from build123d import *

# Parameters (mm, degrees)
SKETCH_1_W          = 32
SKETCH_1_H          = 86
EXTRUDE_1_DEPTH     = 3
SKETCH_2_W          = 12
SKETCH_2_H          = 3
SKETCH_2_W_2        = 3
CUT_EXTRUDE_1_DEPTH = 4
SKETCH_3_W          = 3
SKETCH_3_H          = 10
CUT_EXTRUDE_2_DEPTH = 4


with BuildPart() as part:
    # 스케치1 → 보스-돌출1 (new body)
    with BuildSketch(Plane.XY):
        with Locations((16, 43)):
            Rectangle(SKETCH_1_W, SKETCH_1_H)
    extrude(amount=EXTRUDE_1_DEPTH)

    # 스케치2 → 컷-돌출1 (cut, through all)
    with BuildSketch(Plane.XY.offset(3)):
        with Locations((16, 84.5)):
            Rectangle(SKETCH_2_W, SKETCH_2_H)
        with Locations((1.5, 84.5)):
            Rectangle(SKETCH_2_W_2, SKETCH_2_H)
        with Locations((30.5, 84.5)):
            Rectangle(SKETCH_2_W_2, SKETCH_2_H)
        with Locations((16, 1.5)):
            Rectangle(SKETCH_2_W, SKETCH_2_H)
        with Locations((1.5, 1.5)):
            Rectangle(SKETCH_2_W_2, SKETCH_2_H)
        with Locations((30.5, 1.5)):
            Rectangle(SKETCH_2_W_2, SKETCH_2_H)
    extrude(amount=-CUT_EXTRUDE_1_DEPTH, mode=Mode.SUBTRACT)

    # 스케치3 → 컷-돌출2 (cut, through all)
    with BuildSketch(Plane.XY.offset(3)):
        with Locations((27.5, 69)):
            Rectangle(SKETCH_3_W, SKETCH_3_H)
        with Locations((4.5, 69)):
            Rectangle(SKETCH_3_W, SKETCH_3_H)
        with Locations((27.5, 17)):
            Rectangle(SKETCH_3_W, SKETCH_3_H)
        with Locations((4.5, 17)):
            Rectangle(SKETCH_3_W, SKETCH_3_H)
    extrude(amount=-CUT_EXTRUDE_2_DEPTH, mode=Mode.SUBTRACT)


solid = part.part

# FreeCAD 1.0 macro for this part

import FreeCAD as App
import Part
import Sketcher

doc = App.newDocument("Part")
body = doc.addObject("PartDesign::Body", "Body")

# Sketch on XY plane
sketch1 = doc.addObject("Sketcher::SketchObject", "Sketch")
body.addObject(sketch1)
sketch1.AttachmentSupport = (doc.XY_Plane, [""])
sketch1.MapMode = "FlatFace"
sketch1.addGeometry(Part.LineSegment(App.Vector(0, 86, 0), App.Vector(0, 0, 0)), False)
sketch1.addGeometry(Part.LineSegment(App.Vector(0, 0, 0), App.Vector(32, 0, 0)), False)
sketch1.addGeometry(Part.LineSegment(App.Vector(32, 0, 0), App.Vector(32, 86, 0)), False)
sketch1.addGeometry(Part.LineSegment(App.Vector(32, 86, 0), App.Vector(0, 86, 0)), False)
sketch1.addConstraint(Sketcher.Constraint("Coincident", 0, 2, 1, 1))
sketch1.addConstraint(Sketcher.Constraint("Coincident", 1, 2, 2, 1))
sketch1.addConstraint(Sketcher.Constraint("Coincident", 2, 2, 3, 1))
sketch1.addConstraint(Sketcher.Constraint("Coincident", 3, 2, 0, 1))
sketch1.addConstraint(Sketcher.Constraint("Vertical", 0))
sketch1.addConstraint(Sketcher.Constraint("Horizontal", 1))
sketch1.addConstraint(Sketcher.Constraint("Vertical", 2))
sketch1.addConstraint(Sketcher.Constraint("Horizontal", 3))
sketch1.addConstraint(Sketcher.Constraint("Coincident", 0, 2, -1, 1))
sketch1.addConstraint(Sketcher.Constraint("DistanceX", 1, 1, 1, 2, 32.0))
sketch1.addConstraint(Sketcher.Constraint("DistanceY", 0, 2, 0, 1, 86.0))
pad1 = doc.addObject("PartDesign::Pad", "Pad")
body.addObject(pad1)
pad1.Profile = sketch1
pad1.Length = 3

# Sketch on XY plane
sketch2 = doc.addObject("Sketcher::SketchObject", "Sketch001")
body.addObject(sketch2)
sketch2.AttachmentSupport = (doc.XY_Plane, [""])
sketch2.MapMode = "FlatFace"
sketch2.AttachmentOffset = App.Placement(App.Vector(0, 0, 3), App.Rotation())
sketch2.addGeometry(Part.LineSegment(App.Vector(10, 86, 0), App.Vector(10, 83, 0)), False)
sketch2.addGeometry(Part.LineSegment(App.Vector(10, 83, 0), App.Vector(22, 83, 0)), False)
sketch2.addGeometry(Part.LineSegment(App.Vector(22, 83, 0), App.Vector(22, 86, 0)), False)
sketch2.addGeometry(Part.LineSegment(App.Vector(22, 86, 0), App.Vector(10, 86, 0)), False)
sketch2.addGeometry(Part.LineSegment(App.Vector(0, 86, 0), App.Vector(0, 83, 0)), False)
sketch2.addGeometry(Part.LineSegment(App.Vector(0, 83, 0), App.Vector(3, 83, 0)), False)
sketch2.addGeometry(Part.LineSegment(App.Vector(3, 83, 0), App.Vector(3, 86, 0)), False)
sketch2.addGeometry(Part.LineSegment(App.Vector(3, 86, 0), App.Vector(0, 86, 0)), False)
sketch2.addGeometry(Part.LineSegment(App.Vector(29, 86, 0), App.Vector(29, 83, 0)), False)
sketch2.addGeometry(Part.LineSegment(App.Vector(29, 83, 0), App.Vector(32, 83, 0)), False)
sketch2.addGeometry(Part.LineSegment(App.Vector(32, 83, 0), App.Vector(32, 86, 0)), False)
sketch2.addGeometry(Part.LineSegment(App.Vector(32, 86, 0), App.Vector(29, 86, 0)), False)
sketch2.addGeometry(Part.LineSegment(App.Vector(10, 3, 0), App.Vector(10, 0, 0)), False)
sketch2.addGeometry(Part.LineSegment(App.Vector(10, 0, 0), App.Vector(22, 0, 0)), False)
sketch2.addGeometry(Part.LineSegment(App.Vector(22, 0, 0), App.Vector(22, 3, 0)), False)
sketch2.addGeometry(Part.LineSegment(App.Vector(22, 3, 0), App.Vector(10, 3, 0)), False)
sketch2.addGeometry(Part.LineSegment(App.Vector(0, 3, 0), App.Vector(0, 0, 0)), False)
sketch2.addGeometry(Part.LineSegment(App.Vector(0, 0, 0), App.Vector(3, 0, 0)), False)
sketch2.addGeometry(Part.LineSegment(App.Vector(3, 0, 0), App.Vector(3, 3, 0)), False)
sketch2.addGeometry(Part.LineSegment(App.Vector(3, 3, 0), App.Vector(0, 3, 0)), False)
sketch2.addGeometry(Part.LineSegment(App.Vector(29, 3, 0), App.Vector(29, 0, 0)), False)
sketch2.addGeometry(Part.LineSegment(App.Vector(29, 0, 0), App.Vector(32, 0, 0)), False)
sketch2.addGeometry(Part.LineSegment(App.Vector(32, 0, 0), App.Vector(32, 3, 0)), False)
sketch2.addGeometry(Part.LineSegment(App.Vector(32, 3, 0), App.Vector(29, 3, 0)), False)
sketch2.addConstraint(Sketcher.Constraint("Coincident", 0, 2, 1, 1))
sketch2.addConstraint(Sketcher.Constraint("Coincident", 1, 2, 2, 1))
sketch2.addConstraint(Sketcher.Constraint("Coincident", 2, 2, 3, 1))
sketch2.addConstraint(Sketcher.Constraint("Coincident", 3, 2, 0, 1))
sketch2.addConstraint(Sketcher.Constraint("Coincident", 4, 2, 5, 1))
sketch2.addConstraint(Sketcher.Constraint("Coincident", 5, 2, 6, 1))
sketch2.addConstraint(Sketcher.Constraint("Coincident", 6, 2, 7, 1))
sketch2.addConstraint(Sketcher.Constraint("Coincident", 7, 2, 4, 1))
sketch2.addConstraint(Sketcher.Constraint("Coincident", 8, 2, 9, 1))
sketch2.addConstraint(Sketcher.Constraint("Coincident", 9, 2, 10, 1))
sketch2.addConstraint(Sketcher.Constraint("Coincident", 10, 2, 11, 1))
sketch2.addConstraint(Sketcher.Constraint("Coincident", 11, 2, 8, 1))
sketch2.addConstraint(Sketcher.Constraint("Coincident", 12, 2, 13, 1))
sketch2.addConstraint(Sketcher.Constraint("Coincident", 13, 2, 14, 1))
sketch2.addConstraint(Sketcher.Constraint("Coincident", 14, 2, 15, 1))
sketch2.addConstraint(Sketcher.Constraint("Coincident", 15, 2, 12, 1))
sketch2.addConstraint(Sketcher.Constraint("Coincident", 16, 2, 17, 1))
sketch2.addConstraint(Sketcher.Constraint("Coincident", 17, 2, 18, 1))
sketch2.addConstraint(Sketcher.Constraint("Coincident", 18, 2, 19, 1))
sketch2.addConstraint(Sketcher.Constraint("Coincident", 19, 2, 16, 1))
sketch2.addConstraint(Sketcher.Constraint("Coincident", 20, 2, 21, 1))
sketch2.addConstraint(Sketcher.Constraint("Coincident", 21, 2, 22, 1))
sketch2.addConstraint(Sketcher.Constraint("Coincident", 22, 2, 23, 1))
sketch2.addConstraint(Sketcher.Constraint("Coincident", 23, 2, 20, 1))
sketch2.addConstraint(Sketcher.Constraint("Vertical", 0))
sketch2.addConstraint(Sketcher.Constraint("Horizontal", 1))
sketch2.addConstraint(Sketcher.Constraint("Vertical", 2))
sketch2.addConstraint(Sketcher.Constraint("Horizontal", 3))
sketch2.addConstraint(Sketcher.Constraint("Vertical", 4))
sketch2.addConstraint(Sketcher.Constraint("Horizontal", 5))
sketch2.addConstraint(Sketcher.Constraint("Vertical", 6))
sketch2.addConstraint(Sketcher.Constraint("Horizontal", 7))
sketch2.addConstraint(Sketcher.Constraint("Vertical", 8))
sketch2.addConstraint(Sketcher.Constraint("Horizontal", 9))
sketch2.addConstraint(Sketcher.Constraint("Vertical", 10))
sketch2.addConstraint(Sketcher.Constraint("Horizontal", 11))
sketch2.addConstraint(Sketcher.Constraint("Vertical", 12))
sketch2.addConstraint(Sketcher.Constraint("Horizontal", 13))
sketch2.addConstraint(Sketcher.Constraint("Vertical", 14))
sketch2.addConstraint(Sketcher.Constraint("Horizontal", 15))
sketch2.addConstraint(Sketcher.Constraint("Vertical", 16))
sketch2.addConstraint(Sketcher.Constraint("Horizontal", 17))
sketch2.addConstraint(Sketcher.Constraint("Vertical", 18))
sketch2.addConstraint(Sketcher.Constraint("Horizontal", 19))
sketch2.addConstraint(Sketcher.Constraint("Vertical", 20))
sketch2.addConstraint(Sketcher.Constraint("Horizontal", 21))
sketch2.addConstraint(Sketcher.Constraint("Vertical", 22))
sketch2.addConstraint(Sketcher.Constraint("Horizontal", 23))
sketch2.addConstraint(Sketcher.Constraint("Coincident", 16, 2, -1, 1))
sketch2.addConstraint(Sketcher.Constraint("PointOnObject", 4, 2, -2))
sketch2.addConstraint(Sketcher.Constraint("PointOnObject", 12, 2, -1))
sketch2.addConstraint(Sketcher.Constraint("PointOnObject", 20, 2, -1))
sketch2.addConstraint(Sketcher.Constraint("Horizontal", 1, 2, 4, 2))
sketch2.addConstraint(Sketcher.Constraint("Horizontal", 3, 2, 6, 2))
sketch2.addConstraint(Sketcher.Constraint("Horizontal", 5, 2, 8, 2))
sketch2.addConstraint(Sketcher.Constraint("Horizontal", 7, 2, 10, 2))
sketch2.addConstraint(Sketcher.Constraint("Horizontal", 15, 2, 18, 2))
sketch2.addConstraint(Sketcher.Constraint("Horizontal", 19, 2, 22, 2))
sketch2.addConstraint(Sketcher.Constraint("Vertical", 3, 2, 12, 2))
sketch2.addConstraint(Sketcher.Constraint("Vertical", 2, 2, 13, 2))
sketch2.addConstraint(Sketcher.Constraint("Vertical", 6, 2, 17, 2))
sketch2.addConstraint(Sketcher.Constraint("Vertical", 11, 2, 20, 2))
sketch2.addConstraint(Sketcher.Constraint("Vertical", 10, 2, 21, 2))
sketch2.addConstraint(Sketcher.Constraint("Equal", 7, 9))
sketch2.addConstraint(Sketcher.Constraint("Equal", 23, 0))
sketch2.addConstraint(Sketcher.Constraint("Equal", 10, 12))
sketch2.addConstraint(Sketcher.Constraint("DistanceX", 1, 1, 1, 2, 12.0))
sketch2.addConstraint(Sketcher.Constraint("DistanceX", 5, 1, 5, 2, 3.0))
sketch2.addConstraint(Sketcher.Constraint("DistanceX", -1, 1, 0, 2, 10.0))
sketch2.addConstraint(Sketcher.Constraint("DistanceY", -1, 1, 0, 2, 83.0))
sketch2.addConstraint(Sketcher.Constraint("DistanceX", -1, 1, 8, 2, 29.0))
pocket1 = doc.addObject("PartDesign::Pocket", "Pocket")
body.addObject(pocket1)
pocket1.Profile = sketch2
pocket1.Type = "ThroughAll"

# Sketch on XY plane
sketch3 = doc.addObject("Sketcher::SketchObject", "Sketch002")
body.addObject(sketch3)
sketch3.AttachmentSupport = (doc.XY_Plane, [""])
sketch3.MapMode = "FlatFace"
sketch3.AttachmentOffset = App.Placement(App.Vector(0, 0, 3), App.Rotation())
sketch3.addGeometry(Part.LineSegment(App.Vector(26, 74, 0), App.Vector(26, 64, 0)), False)
sketch3.addGeometry(Part.LineSegment(App.Vector(26, 64, 0), App.Vector(29, 64, 0)), False)
sketch3.addGeometry(Part.LineSegment(App.Vector(29, 64, 0), App.Vector(29, 74, 0)), False)
sketch3.addGeometry(Part.LineSegment(App.Vector(29, 74, 0), App.Vector(26, 74, 0)), False)
sketch3.addGeometry(Part.LineSegment(App.Vector(3, 74, 0), App.Vector(3, 64, 0)), False)
sketch3.addGeometry(Part.LineSegment(App.Vector(3, 64, 0), App.Vector(6, 64, 0)), False)
sketch3.addGeometry(Part.LineSegment(App.Vector(6, 64, 0), App.Vector(6, 74, 0)), False)
sketch3.addGeometry(Part.LineSegment(App.Vector(6, 74, 0), App.Vector(3, 74, 0)), False)
sketch3.addGeometry(Part.LineSegment(App.Vector(26, 22, 0), App.Vector(26, 12, 0)), False)
sketch3.addGeometry(Part.LineSegment(App.Vector(26, 12, 0), App.Vector(29, 12, 0)), False)
sketch3.addGeometry(Part.LineSegment(App.Vector(29, 12, 0), App.Vector(29, 22, 0)), False)
sketch3.addGeometry(Part.LineSegment(App.Vector(29, 22, 0), App.Vector(26, 22, 0)), False)
sketch3.addGeometry(Part.LineSegment(App.Vector(3, 22, 0), App.Vector(3, 12, 0)), False)
sketch3.addGeometry(Part.LineSegment(App.Vector(3, 12, 0), App.Vector(6, 12, 0)), False)
sketch3.addGeometry(Part.LineSegment(App.Vector(6, 12, 0), App.Vector(6, 22, 0)), False)
sketch3.addGeometry(Part.LineSegment(App.Vector(6, 22, 0), App.Vector(3, 22, 0)), False)
sketch3.addConstraint(Sketcher.Constraint("Coincident", 0, 2, 1, 1))
sketch3.addConstraint(Sketcher.Constraint("Coincident", 1, 2, 2, 1))
sketch3.addConstraint(Sketcher.Constraint("Coincident", 2, 2, 3, 1))
sketch3.addConstraint(Sketcher.Constraint("Coincident", 3, 2, 0, 1))
sketch3.addConstraint(Sketcher.Constraint("Coincident", 4, 2, 5, 1))
sketch3.addConstraint(Sketcher.Constraint("Coincident", 5, 2, 6, 1))
sketch3.addConstraint(Sketcher.Constraint("Coincident", 6, 2, 7, 1))
sketch3.addConstraint(Sketcher.Constraint("Coincident", 7, 2, 4, 1))
sketch3.addConstraint(Sketcher.Constraint("Coincident", 8, 2, 9, 1))
sketch3.addConstraint(Sketcher.Constraint("Coincident", 9, 2, 10, 1))
sketch3.addConstraint(Sketcher.Constraint("Coincident", 10, 2, 11, 1))
sketch3.addConstraint(Sketcher.Constraint("Coincident", 11, 2, 8, 1))
sketch3.addConstraint(Sketcher.Constraint("Coincident", 12, 2, 13, 1))
sketch3.addConstraint(Sketcher.Constraint("Coincident", 13, 2, 14, 1))
sketch3.addConstraint(Sketcher.Constraint("Coincident", 14, 2, 15, 1))
sketch3.addConstraint(Sketcher.Constraint("Coincident", 15, 2, 12, 1))
sketch3.addConstraint(Sketcher.Constraint("Vertical", 0))
sketch3.addConstraint(Sketcher.Constraint("Horizontal", 1))
sketch3.addConstraint(Sketcher.Constraint("Vertical", 2))
sketch3.addConstraint(Sketcher.Constraint("Horizontal", 3))
sketch3.addConstraint(Sketcher.Constraint("Vertical", 4))
sketch3.addConstraint(Sketcher.Constraint("Horizontal", 5))
sketch3.addConstraint(Sketcher.Constraint("Vertical", 6))
sketch3.addConstraint(Sketcher.Constraint("Horizontal", 7))
sketch3.addConstraint(Sketcher.Constraint("Vertical", 8))
sketch3.addConstraint(Sketcher.Constraint("Horizontal", 9))
sketch3.addConstraint(Sketcher.Constraint("Vertical", 10))
sketch3.addConstraint(Sketcher.Constraint("Horizontal", 11))
sketch3.addConstraint(Sketcher.Constraint("Vertical", 12))
sketch3.addConstraint(Sketcher.Constraint("Horizontal", 13))
sketch3.addConstraint(Sketcher.Constraint("Vertical", 14))
sketch3.addConstraint(Sketcher.Constraint("Horizontal", 15))
sketch3.addConstraint(Sketcher.Constraint("Horizontal", 1, 2, 4, 2))
sketch3.addConstraint(Sketcher.Constraint("Horizontal", 3, 2, 6, 2))
sketch3.addConstraint(Sketcher.Constraint("Horizontal", 9, 2, 12, 2))
sketch3.addConstraint(Sketcher.Constraint("Horizontal", 11, 2, 14, 2))
sketch3.addConstraint(Sketcher.Constraint("Vertical", 3, 2, 8, 2))
sketch3.addConstraint(Sketcher.Constraint("Vertical", 2, 2, 9, 2))
sketch3.addConstraint(Sketcher.Constraint("Vertical", 7, 2, 12, 2))
sketch3.addConstraint(Sketcher.Constraint("Vertical", 6, 2, 13, 2))
sketch3.addConstraint(Sketcher.Constraint("Equal", 3, 5))
sketch3.addConstraint(Sketcher.Constraint("Equal", 6, 8))
sketch3.addConstraint(Sketcher.Constraint("DistanceX", 1, 1, 1, 2, 3.0))
sketch3.addConstraint(Sketcher.Constraint("DistanceY", 0, 2, 0, 1, 10.0))
sketch3.addConstraint(Sketcher.Constraint("DistanceX", -1, 1, 0, 2, 26.0))
sketch3.addConstraint(Sketcher.Constraint("DistanceY", -1, 1, 0, 2, 64.0))
sketch3.addConstraint(Sketcher.Constraint("DistanceX", -1, 1, 4, 2, 3.0))
sketch3.addConstraint(Sketcher.Constraint("DistanceY", -1, 1, 8, 2, 12.0))
pocket2 = doc.addObject("PartDesign::Pocket", "Pocket001")
body.addObject(pocket2)
pocket2.Profile = sketch3
pocket2.Type = "ThroughAll"

doc.recompute()
